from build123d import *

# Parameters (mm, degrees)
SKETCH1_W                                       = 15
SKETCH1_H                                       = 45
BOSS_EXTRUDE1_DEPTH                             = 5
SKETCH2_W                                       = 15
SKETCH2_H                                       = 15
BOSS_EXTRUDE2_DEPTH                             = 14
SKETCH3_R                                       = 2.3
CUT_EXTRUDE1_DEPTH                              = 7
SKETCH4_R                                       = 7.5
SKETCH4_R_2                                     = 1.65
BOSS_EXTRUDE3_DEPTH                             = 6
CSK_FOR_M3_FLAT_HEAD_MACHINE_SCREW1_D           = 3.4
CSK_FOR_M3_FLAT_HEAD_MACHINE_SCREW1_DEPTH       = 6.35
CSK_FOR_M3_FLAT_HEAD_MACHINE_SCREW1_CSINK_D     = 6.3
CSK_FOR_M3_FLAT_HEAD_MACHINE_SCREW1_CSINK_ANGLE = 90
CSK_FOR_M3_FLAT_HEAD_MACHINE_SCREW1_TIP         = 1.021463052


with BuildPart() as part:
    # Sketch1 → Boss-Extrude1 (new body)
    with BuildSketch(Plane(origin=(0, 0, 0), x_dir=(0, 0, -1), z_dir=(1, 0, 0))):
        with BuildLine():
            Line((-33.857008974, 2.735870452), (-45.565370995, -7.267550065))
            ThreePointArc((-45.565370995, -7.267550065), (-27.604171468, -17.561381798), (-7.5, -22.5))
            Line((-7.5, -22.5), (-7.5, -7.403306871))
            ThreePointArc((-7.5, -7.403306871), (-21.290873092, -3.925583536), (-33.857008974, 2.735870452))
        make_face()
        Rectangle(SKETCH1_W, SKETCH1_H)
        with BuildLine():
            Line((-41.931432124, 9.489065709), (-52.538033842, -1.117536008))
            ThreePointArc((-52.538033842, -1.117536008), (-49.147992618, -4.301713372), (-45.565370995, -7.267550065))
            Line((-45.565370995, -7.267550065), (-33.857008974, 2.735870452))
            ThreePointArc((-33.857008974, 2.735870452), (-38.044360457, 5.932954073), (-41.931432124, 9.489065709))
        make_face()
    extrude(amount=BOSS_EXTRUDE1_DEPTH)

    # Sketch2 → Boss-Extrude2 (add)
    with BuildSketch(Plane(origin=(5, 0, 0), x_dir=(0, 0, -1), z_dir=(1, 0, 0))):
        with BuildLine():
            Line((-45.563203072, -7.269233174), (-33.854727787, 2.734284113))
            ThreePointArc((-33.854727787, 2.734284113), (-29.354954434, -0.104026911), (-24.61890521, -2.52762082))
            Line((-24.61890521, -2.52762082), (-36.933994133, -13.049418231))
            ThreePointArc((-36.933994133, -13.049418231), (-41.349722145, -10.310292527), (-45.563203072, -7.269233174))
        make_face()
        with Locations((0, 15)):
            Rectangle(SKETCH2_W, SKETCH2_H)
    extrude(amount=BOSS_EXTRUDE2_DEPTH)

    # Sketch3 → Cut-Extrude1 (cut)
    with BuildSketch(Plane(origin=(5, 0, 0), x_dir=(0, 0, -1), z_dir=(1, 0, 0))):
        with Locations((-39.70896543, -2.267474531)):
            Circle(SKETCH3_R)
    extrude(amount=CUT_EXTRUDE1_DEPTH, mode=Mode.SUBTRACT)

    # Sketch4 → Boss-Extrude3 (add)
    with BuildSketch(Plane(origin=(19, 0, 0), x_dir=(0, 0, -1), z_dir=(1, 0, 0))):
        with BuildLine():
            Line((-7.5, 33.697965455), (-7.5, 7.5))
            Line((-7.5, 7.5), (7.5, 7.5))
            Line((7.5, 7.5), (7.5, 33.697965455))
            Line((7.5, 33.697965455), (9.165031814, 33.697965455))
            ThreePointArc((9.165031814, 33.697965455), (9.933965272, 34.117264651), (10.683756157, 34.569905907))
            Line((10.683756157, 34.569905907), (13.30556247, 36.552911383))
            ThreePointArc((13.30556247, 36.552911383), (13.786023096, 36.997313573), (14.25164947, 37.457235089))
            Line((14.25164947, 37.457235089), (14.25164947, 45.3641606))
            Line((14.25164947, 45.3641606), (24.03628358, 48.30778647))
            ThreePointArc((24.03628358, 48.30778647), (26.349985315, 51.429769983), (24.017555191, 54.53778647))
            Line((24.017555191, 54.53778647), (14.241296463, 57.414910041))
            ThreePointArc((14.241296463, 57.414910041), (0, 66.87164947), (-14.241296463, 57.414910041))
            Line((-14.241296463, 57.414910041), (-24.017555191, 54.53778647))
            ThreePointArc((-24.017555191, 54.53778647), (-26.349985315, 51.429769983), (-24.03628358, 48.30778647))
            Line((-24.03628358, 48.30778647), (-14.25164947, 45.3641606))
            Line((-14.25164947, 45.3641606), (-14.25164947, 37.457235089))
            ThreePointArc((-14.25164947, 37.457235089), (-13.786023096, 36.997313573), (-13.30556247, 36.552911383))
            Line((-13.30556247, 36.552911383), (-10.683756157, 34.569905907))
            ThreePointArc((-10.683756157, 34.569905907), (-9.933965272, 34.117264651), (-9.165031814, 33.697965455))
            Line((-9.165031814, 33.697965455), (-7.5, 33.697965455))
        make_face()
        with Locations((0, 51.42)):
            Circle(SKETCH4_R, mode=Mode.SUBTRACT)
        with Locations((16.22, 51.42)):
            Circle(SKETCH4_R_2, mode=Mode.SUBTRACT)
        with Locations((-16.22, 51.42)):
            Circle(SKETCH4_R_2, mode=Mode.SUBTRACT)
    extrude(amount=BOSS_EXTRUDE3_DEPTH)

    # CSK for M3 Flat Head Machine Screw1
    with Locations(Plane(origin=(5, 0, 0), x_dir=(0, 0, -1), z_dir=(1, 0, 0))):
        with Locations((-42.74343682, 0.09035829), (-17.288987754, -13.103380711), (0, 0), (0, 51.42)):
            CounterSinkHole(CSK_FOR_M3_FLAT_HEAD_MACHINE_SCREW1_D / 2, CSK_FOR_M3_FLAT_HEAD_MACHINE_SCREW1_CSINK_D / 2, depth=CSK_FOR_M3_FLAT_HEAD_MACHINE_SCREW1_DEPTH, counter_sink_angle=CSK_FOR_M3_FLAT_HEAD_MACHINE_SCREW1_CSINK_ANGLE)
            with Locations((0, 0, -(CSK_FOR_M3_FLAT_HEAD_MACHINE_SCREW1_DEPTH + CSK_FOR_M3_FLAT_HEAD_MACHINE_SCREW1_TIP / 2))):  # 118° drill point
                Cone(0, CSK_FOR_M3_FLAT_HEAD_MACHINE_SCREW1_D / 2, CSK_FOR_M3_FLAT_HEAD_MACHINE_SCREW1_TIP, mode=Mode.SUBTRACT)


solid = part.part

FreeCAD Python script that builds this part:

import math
import FreeCAD as App
import Part
import Sketcher

V = App.Vector
Q = App.Units.Quantity

doc = App.newDocument("Part")
params = doc.addObject("Spreadsheet::Sheet", "Params")
for row, (alias, value) in enumerate([
    ("sketch1_radius", "74.3 mm"),
    ("sketch1_radius2", "59.3 mm"),
    ("sketch1_width", "45 mm"),
    ("sketch1_height", "15 mm"),
    ("pad1_length", "5 mm"),
    ("sketch2_radius", "74.3 mm"),
    ("sketch2_radius2", "59.3 mm"),
    ("sketch2_width", "15 mm"),
    ("pad2_length", "14 mm"),
    ("sketch3_diameter", "4.6 mm"),
    ("pocket1_length", "7 mm"),
    ("sketch4_diameter", "15 mm"),
    ("sketch4_diameter2", "3.3 mm"),
    ("sketch4_height", "15 mm"),
    ("sketch4_radius", "3.25 mm"),
    ("pad3_length", "6 mm"),
    ("sketch5_diameter", "3.4 mm"),
    ("hole_diameter", "3.4 mm"),
    ("hole_depth", "6.35 mm"),
    ("hole_csink_diameter", "6.3 mm"),
], start=1):
    params.set(f"A{row}", alias)
    params.set(f"B{row}", "=" + value)
    params.setAlias(f"B{row}", alias)

body = doc.addObject("PartDesign::Body", "Body")

sketch1 = body.newObject("Sketcher::SketchObject", "Sketch")
sketch1.AttachmentSupport = (doc.getObject("YZ_Plane"), [""])
sketch1.MapMode = "FlatFace"
sketch1.addGeometry(Part.ArcOfCircle(Part.Circle(V(51, 0, 0), V(0, 0, 1), 74), math.radians(142), math.radians(174)), False)
sketch1.addGeometry(Part.LineSegment(V(-22, 8, 0), V(-22, -8, 0)), False)
sketch1.addGeometry(Part.LineSegment(V(-22, -8, 0), V(22, -8, 0)), False)
sketch1.addGeometry(Part.LineSegment(V(22, -8, 0), V(22, 8, 0)), False)
sketch1.addGeometry(Part.LineSegment(V(22, 8, 0), V(-7, 8, 0)), False)
sketch1.addGeometry(Part.ArcOfCircle(Part.Circle(V(51, 0, 0), V(0, 0, 1), 59), math.radians(145), math.radians(173)), False)
sketch1.addGeometry(Part.ArcOfCircle(Part.Circle(V(51, 0, 0), V(0, 0, 1), 59), math.radians(135), math.radians(145.18)), False)
sketch1.addGeometry(Part.LineSegment(V(9, 42, 0), V(-1, 53, 0)), False)
sketch1.addGeometry(Part.ArcOfCircle(Part.Circle(V(51, 0, 0), V(0, 0, 1), 74), math.radians(135), math.radians(142.17)), False)
sketch1.addConstraint(Sketcher.Constraint("Coincident", 0, 2, 1, 1))
sketch1.addConstraint(Sketcher.Constraint("Coincident", 1, 2, 2, 1))
sketch1.addConstraint(Sketcher.Constraint("Coincident", 2, 2, 3, 1))
sketch1.addConstraint(Sketcher.Constraint("Coincident", 3, 2, 4, 1))
sketch1.addConstraint(Sketcher.Constraint("Coincident", 4, 2, 5, 2))
sketch1.addConstraint(Sketcher.Constraint("Tangent", 5, 1, 6, 2))
sketch1.addConstraint(Sketcher.Constraint("Coincident", 6, 1, 7, 1))
sketch1.addConstraint(Sketcher.Constraint("Coincident", 7, 2, 8, 1))
sketch1.addConstraint(Sketcher.Constraint("Tangent", 8, 2, 0, 1))
sketch1.addConstraint(Sketcher.Constraint("Vertical", 1))
sketch1.addConstraint(Sketcher.Constraint("Horizontal", 2))
sketch1.addConstraint(Sketcher.Constraint("Vertical", 3))
sketch1.addConstraint(Sketcher.Constraint("Horizontal", 4))
sketch1.addConstraint(Sketcher.Constraint("Coincident", 5, 3, 0, 3))
sketch1.addConstraint(Sketcher.Constraint("Equal", 5, 6))
sketch1.addConstraint(Sketcher.Constraint("Equal", 0, 8))
sketch1.addConstraint(Sketcher.Constraint("Symmetric", 0, 2, 2, 2, -1, 1))
sketch1.addConstraint(Sketcher.Constraint("PointOnObject", 0, 3, -1))
sketch1.addConstraint(Sketcher.Constraint("Horizontal", 0, 2, 3, 2))
sketch1.addConstraint(Sketcher.Constraint("Radius", 0, Q("74.3 mm")))
sketch1.addConstraint(Sketcher.Constraint("Radius", 5, Q("59.3 mm")))
sketch1.addConstraint(Sketcher.Constraint("DistanceX", 2, 1, 2, 2, Q("45 mm")))
sketch1.addConstraint(Sketcher.Constraint("DistanceY", 1, 2, 1, 1, Q("15 mm")))
sketch1.addConstraint(Sketcher.Constraint("Angle", 7, Q("135 deg")))
sketch1.addConstraint(Sketcher.Constraint("DistanceX", -1, 1, 5, 1, Q("2.73587 mm")))
sketch1.addConstraint(Sketcher.Constraint("DistanceX", 8, 2, -1, 1, Q("7.26755 mm")))
sketch1.addConstraint(Sketcher.Constraint("DistanceX", 4, 2, 7, 2, Q("6.285771 mm")))
sketch1.setExpression("Constraints[19]", "Params.sketch1_radius")
sketch1.setExpression("Constraints[20]", "Params.sketch1_radius2")
sketch1.setExpression("Constraints[21]", "Params.sketch1_width")
sketch1.setExpression("Constraints[22]", "Params.sketch1_height")
pad1 = body.newObject("PartDesign::Pad", "Pad")
pad1.Profile = sketch1
pad1.setExpression("Length", "Params.pad1_length")

sketch2 = body.newObject("Sketcher::SketchObject", "Sketch001")
sketch2.AttachmentSupport = (doc.getObject("YZ_Plane"), [""])
sketch2.MapMode = "FlatFace"
sketch2.AttachmentOffset = App.Placement(V(0, 0, 5), App.Rotation())
sketch2.addGeometry(Part.LineSegment(V(3, 34, 0), V(-7, 46, 0)), False)
sketch2.addGeometry(Part.ArcOfCircle(Part.Circle(V(51, 0, 0), V(0, 0, 1), 74), math.radians(142.18), math.radians(150.19)), False)
sketch2.addGeometry(Part.LineSegment(V(-13, 37, 0), V(-3, 25, 0)), False)
sketch2.addGeometry(Part.ArcOfCircle(Part.Circle(V(51, 0, 0), V(0, 0, 1), 59), math.radians(145.19), math.radians(155.47)), False)
sketch2.addGeometry(Part.LineSegment(V(22, 8, 0), V(8, 8, 0)), False)
sketch2.addGeometry(Part.LineSegment(V(8, 8, 0), V(8, -8, 0)), False)
sketch2.addGeometry(Part.LineSegment(V(8, -8, 0), V(22, -8, 0)), False)
sketch2.addGeometry(Part.LineSegment(V(22, -8, 0), V(22, 8, 0)), False)
sketch2.addConstraint(Sketcher.Constraint("Coincident", 0, 2, 1, 1))
sketch2.addConstraint(Sketcher.Constraint("Coincident", 1, 2, 2, 1))
sketch2.addConstraint(Sketcher.Constraint("Coincident", 2, 2, 3, 2))
sketch2.addConstraint(Sketcher.Constraint("Coincident", 3, 1, 0, 1))
sketch2.addConstraint(Sketcher.Constraint("Coincident", 4, 2, 5, 1))
sketch2.addConstraint(Sketcher.Constraint("Coincident", 5, 2, 6, 1))
sketch2.addConstraint(Sketcher.Constraint("Coincident", 6, 2, 7, 1))
sketch2.addConstraint(Sketcher.Constraint("Coincident", 7, 2, 4, 1))
sketch2.addConstraint(Sketcher.Constraint("Horizontal", 4))
sketch2.addConstraint(Sketcher.Constraint("Vertical", 5))
sketch2.addConstraint(Sketcher.Constraint("Horizontal", 6))
sketch2.addConstraint(Sketcher.Constraint("Vertical", 7))
sketch2.addConstraint(Sketcher.Constraint("Coincident", 3, 3, 1, 3))
sketch2.addConstraint(Sketcher.Constraint("PointOnObject", 1, 3, -1))
sketch2.addConstraint(Sketcher.Constraint("Parallel", 0, 2))
sketch2.addConstraint(Sketcher.Constraint("Equal", 6, 5))
sketch2.addConstraint(Sketcher.Constraint("Radius", 1, Q("74.3 mm")))
sketch2.addConstraint(Sketcher.Constraint("Radius", 3, Q("59.3 mm")))
sketch2.addConstraint(Sketcher.Constraint("DistanceX", 4, 2, 4, 1, Q("15 mm")))
sketch2.addConstraint(Sketcher.Constraint("DistanceX", -1, 1, 4, 2, Q("7.5 mm")))
sketch2.addConstraint(Sketcher.Constraint("DistanceY", -1, 1, 4, 2, Q("7.5 mm")))
sketch2.addConstraint(Sketcher.Constraint("Angle", 0, Q("130.51 deg")))
sketch2.addConstraint(Sketcher.Constraint("Distance", 0, Q("15.399959 mm")))
sketch2.addConstraint(Sketcher.Constraint("Distance", 2, Q("16.197828 mm")))
sketch2.addConstraint(Sketcher.Constraint("DistanceX", 1, 2, -1, 1, Q("13.049418 mm")))
sketch2.setExpression("Constraints[16]", "Params.sketch2_radius")
sketch2.setExpression("Constraints[17]", "Params.sketch2_radius2")
sketch2.setExpression("Constraints[18]", "Params.sketch2_width")
pad2 = body.newObject("PartDesign::Pad", "Pad001")
pad2.Profile = sketch2
pad2.setExpression("Length", "Params.pad2_length")

sketch3 = body.newObject("Sketcher::SketchObject", "Sketch002")
sketch3.AttachmentSupport = (doc.getObject("YZ_Plane"), [""])
sketch3.MapMode = "FlatFace"
sketch3.AttachmentOffset = App.Placement(V(0, 0, 5), App.Rotation())
sketch3.addGeometry(Part.Circle(V(-2.3, 39.7, 0), V(0, 0, 1), 2.3), False)
sketch3.addConstraint(Sketcher.Constraint("Diameter", 0, Q("4.6 mm")))
sketch3.addConstraint(Sketcher.Constraint("DistanceX", 0, 3, -1, 1, Q("2.267475 mm")))
sketch3.addConstraint(Sketcher.Constraint("DistanceY", -1, 1, 0, 3, Q("39.708965 mm")))
sketch3.setExpression("Constraints[0]", "Params.sketch3_diameter")
pocket1 = body.newObject("PartDesign::Pocket", "Pocket")
pocket1.Profile = sketch3
pocket1.setExpression("Length", "Params.pocket1_length")
pocket1.Reversed = True

sketch4 = body.newObject("Sketcher::SketchObject", "Sketch003")
sketch4.AttachmentSupport = (doc.getObject("YZ_Plane"), [""])
sketch4.MapMode = "FlatFace"
sketch4.AttachmentOffset = App.Placement(V(0, 0, 19), App.Rotation())
sketch4.addGeometry(Part.LineSegment(V(33.7, 7.5, 0), V(7.5, 7.5, 0)), False)
sketch4.addGeometry(Part.LineSegment(V(7.5, 7.5, 0), V(7.5, -7.5, 0)), False)
sketch4.addGeometry(Part.LineSegment(V(7.5, -7.5, 0), V(33.7, -7.5, 0)), False)
sketch4.addGeometry(Part.LineSegment(V(33.7, -7.5, 0), V(33.7, -9.2, 0)), False)
sketch4.addGeometry(Part.ArcOfCircle(Part.Circle(V(51.4, 0, 0), V(0, 0, 1), 20), math.radians(-152.65), math.radians(-147.62)), False)
sketch4.addGeometry(Part.LineSegment(V(34.6, -10.7, 0), V(36.6, -13.3, 0)), False)
sketch4.addGeometry(Part.ArcOfCircle(Part.Circle(V(51.4, 0, 0), V(0, 0, 1), 20), math.radians(-138.17), math.radians(-134.41)), False)
sketch4.addGeometry(Part.LineSegment(V(37.5, -14.3, 0), V(45.4, -14.3, 0)), False)
sketch4.addGeometry(Part.LineSegment(V(45.4, -14.3, 0), V(48.3, -24, 0)), False)
sketch4.addGeometry(Part.ArcOfCircle(Part.Circle(V(51.4, -23.1, 0), V(0, 0, 1), 3.2), math.radians(-163), math.radians(-16)), False)
sketch4.addGeometry(Part.LineSegment(V(54.5, -24, 0), V(57.4, -14.2, 0)), False)
sketch4.addGeometry(Part.ArcOfCircle(Part.Circle(V(51.4, 0, 0), V(0, 0, 1), 15.5), math.radians(-67), math.radians(67)), False)
sketch4.addGeometry(Part.LineSegment(V(57.4, 14.2, 0), V(54.5, 24, 0)), False)
sketch4.addGeometry(Part.ArcOfCircle(Part.Circle(V(51.4, 23.1, 0), V(0, 0, 1), 3.2), math.radians(16), math.radians(163)), False)
sketch4.addGeometry(Part.LineSegment(V(48.3, 24, 0), V(45.4, 14.3, 0)), False)
sketch4.addGeometry(Part.LineSegment(V(45.4, 14.3, 0), V(37.5, 14.3, 0)), False)
sketch4.addGeometry(Part.ArcOfCircle(Part.Circle(V(51.4, 0, 0), V(0, 0, 1), 20), math.radians(134.41), math.radians(138.17)), False)
sketch4.addGeometry(Part.LineSegment(V(36.6, 13.3, 0), V(34.6, 10.7, 0)), False)
sketch4.addGeometry(Part.ArcOfCircle(Part.Circle(V(51.4, 0, 0), V(0, 0, 1), 20), math.radians(147.62), math.radians(152.65)), False)
sketch4.addGeometry(Part.LineSegment(V(33.7, 9.2, 0), V(33.7, 7.5, 0)), False)
sketch4.addGeometry(Part.Circle(V(51.4, 16.2, 0), V(0, 0, 1), 1.6), False)
sketch4.addGeometry(Part.Circle(V(51.4, 0, 0), V(0, 0, 1), 7.5), False)
sketch4.addGeometry(Part.Circle(V(51.4, -16.2, 0), V(0, 0, 1), 1.6), False)
sketch4.addConstraint(Sketcher.Constraint("Coincident", 0, 2, 1, 1))
sketch4.addConstraint(Sketcher.Constraint("Coincident", 1, 2, 2, 1))
sketch4.addConstraint(Sketcher.Constraint("Coincident", 2, 2, 3, 1))
sketch4.addConstraint(Sketcher.Constraint("Coincident", 3, 2, 4, 1))
sketch4.addConstraint(Sketcher.Constraint("Coincident", 4, 2, 5, 1))
sketch4.addConstraint(Sketcher.Constraint("Coincident", 5, 2, 6, 1))
sketch4.addConstraint(Sketcher.Constraint("Coincident", 6, 2, 7, 1))
sketch4.addConstraint(Sketcher.Constraint("Coincident", 7, 2, 8, 1))
sketch4.addConstraint(Sketcher.Constraint("Tangent", 8, 2, 9, 1))
sketch4.addConstraint(Sketcher.Constraint("Tangent", 9, 2, 10, 1))
sketch4.addConstraint(Sketcher.Constraint("Coincident", 10, 2, 11, 1))
sketch4.addConstraint(Sketcher.Constraint("Coincident", 11, 2, 12, 1))
sketch4.addConstraint(Sketcher.Constraint("Tangent", 12, 2, 13, 1))
sketch4.addConstraint(Sketcher.Constraint("Tangent", 13, 2, 14, 1))
sketch4.addConstraint(Sketcher.Constraint("Coincident", 14, 2, 15, 1))
sketch4.addConstraint(Sketcher.Constraint("Coincident", 15, 2, 16, 1))
sketch4.addConstraint(Sketcher.Constraint("Coincident", 16, 2, 17, 1))
sketch4.addConstraint(Sketcher.Constraint("Coincident", 17, 2, 18, 1))
sketch4.addConstraint(Sketcher.Constraint("Coincident", 18, 2, 19, 1))
sketch4.addConstraint(Sketcher.Constraint("Coincident", 19, 2, 0, 1))
sketch4.addConstraint(Sketcher.Constraint("Horizontal", 0))
sketch4.addConstraint(Sketcher.Constraint("Vertical", 1))
sketch4.addConstraint(Sketcher.Constraint("Horizontal", 2))
sketch4.addConstraint(Sketcher.Constraint("Vertical", 3))
sketch4.addConstraint(Sketcher.Constraint("Horizontal", 7))
sketch4.addConstraint(Sketcher.Constraint("Horizontal", 15))
sketch4.addConstraint(Sketcher.Constraint("Vertical", 19))
sketch4.addConstraint(Sketcher.Constraint("Coincident", 6, 3, 4, 3))
sketch4.addConstraint(Sketcher.Constraint("Coincident", 11, 3, 4, 3))
sketch4.addConstraint(Sketcher.Constraint("Coincident", 16, 3, 4, 3))
sketch4.addConstraint(Sketcher.Constraint("Coincident", 18, 3, 4, 3))
sketch4.addConstraint(Sketcher.Constraint("Coincident", 21, 3, 4, 3))
sketch4.addConstraint(Sketcher.Constraint("Equal", 4, 6))
sketch4.addConstraint(Sketcher.Constraint("Equal", 9, 13))
sketch4.addConstraint(Sketcher.Constraint("Equal", 6, 16))
sketch4.addConstraint(Sketcher.Constraint("Equal", 16, 18))
sketch4.addConstraint(Sketcher.Constraint("Equal", 20, 22))
sketch4.addConstraint(Sketcher.Constraint("Symmetric", 9, 3, 13, 3, -1))
sketch4.addConstraint(Sketcher.Constraint("Symmetric", 20, 3, 22, 3, -1))
sketch4.addConstraint(Sketcher.Constraint("Symmetric", 10, 2, 11, 2, -1))
sketch4.addConstraint(Sketcher.Constraint("Symmetric", 7, 2, 14, 2, -1))
sketch4.addConstraint(Sketcher.Constraint("Symmetric", 2, 2, 19, 2, -1))
sketch4.addConstraint(Sketcher.Constraint("Vertical", 6, 3, 9, 3))
sketch4.addConstraint(Sketcher.Constraint("Vertical", 18, 3, 20, 3))
sketch4.addConstraint(Sketcher.Constraint("Vertical", 5, 2, 16, 2))
sketch4.addConstraint(Sketcher.Constraint("Vertical", 4, 2, 17, 2))
sketch4.addConstraint(Sketcher.Constraint("Diameter", 21, Q("15 mm")))
sketch4.addConstraint(Sketcher.Constraint("Diameter", 20, Q("3.3 mm")))
sketch4.addConstraint(Sketcher.Constraint("DistanceY", 1, 2, 1, 1, Q("15 mm")))
sketch4.addConstraint(Sketcher.Constraint("Radius", 9, Q("3.25 mm")))
sketch4.addConstraint(Sketcher.Constraint("DistanceY", 9, 3, -1, 1, Q("23.1 mm")))
sketch4.addConstraint(Sketcher.Constraint("DistanceX", -1, 1, 0, 2, Q("7.5 mm")))
sketch4.addConstraint(Sketcher.Constraint("DistanceX", -1, 1, 4, 3, Q("51.42 mm")))
sketch4.addConstraint(Sketcher.Constraint("DistanceY", -1, 1, 20, 3, Q("16.22 mm")))
sketch4.addConstraint(Sketcher.Constraint("Radius", 4, Q("19.951649 mm")))
sketch4.addConstraint(Sketcher.Constraint("Radius", 11, Q("15.451649 mm")))
sketch4.addConstraint(Sketcher.Constraint("DistanceX", 8, 2, 9, 2, Q("6.23 mm")))
sketch4.addConstraint(Sketcher.Constraint("DistanceY", 3, 2, 3, 1, Q("1.665032 mm")))
sketch4.addConstraint(Sketcher.Constraint("DistanceX", 7, 1, 7, 2, Q("7.906926 mm")))
sketch4.addConstraint(Sketcher.Constraint("DistanceX", -1, 1, 5, 2, Q("36.552911 mm")))
sketch4.addConstraint(Sketcher.Constraint("DistanceY", 6, 2, -1, 1, Q("14.251649 mm")))
sketch4.addConstraint(Sketcher.Constraint("DistanceX", 3, 2, 4, 2, Q("0.87194 mm")))
sketch4.setExpression("Constraints[46]", "Params.sketch4_diameter")
sketch4.setExpression("Constraints[47]", "Params.sketch4_diameter2")
sketch4.setExpression("Constraints[48]", "Params.sketch4_height")
sketch4.setExpression("Constraints[49]", "Params.sketch4_radius")
pad3 = body.newObject("PartDesign::Pad", "Pad002")
pad3.Profile = sketch4
pad3.setExpression("Length", "Params.pad3_length")

sketch5 = body.newObject("Sketcher::SketchObject", "Sketch004")
sketch5.AttachmentSupport = (doc.getObject("YZ_Plane"), [""])
sketch5.MapMode = "FlatFace"
sketch5.AttachmentOffset = App.Placement(V(0, 0, 5), App.Rotation())
sketch5.addGeometry(Part.Circle(V(0.1, 42.7, 0), V(0, 0, 1), 1.7), False)
sketch5.addGeometry(Part.Circle(V(-13.1, 17.3, 0), V(0, 0, 1), 1.7), False)
sketch5.addGeometry(Part.Circle(V(0, 0, 0), V(0, 0, 1), 1.7), False)
sketch5.addGeometry(Part.Circle(V(51.4, 0, 0), V(0, 0, 1), 1.7), False)
sketch5.addConstraint(Sketcher.Constraint("Coincident", 2, 3, -1, 1))
sketch5.addConstraint(Sketcher.Constraint("Equal", 0, 1))
sketch5.addConstraint(Sketcher.Constraint("Equal", 1, 2))
sketch5.addConstraint(Sketcher.Constraint("Equal", 2, 3))
sketch5.addConstraint(Sketcher.Constraint("PointOnObject", 3, 3, -1))
sketch5.addConstraint(Sketcher.Constraint("Diameter", 0, Q("3.4 mm")))
sketch5.addConstraint(Sketcher.Constraint("DistanceX", -1, 1, 3, 3, Q("51.42 mm")))
sketch5.addConstraint(Sketcher.Constraint("DistanceX", -1, 1, 0, 3, Q("0.090358 mm")))
sketch5.addConstraint(Sketcher.Constraint("DistanceX", 1, 3, -1, 1, Q("13.103381 mm")))
sketch5.addConstraint(Sketcher.Constraint("DistanceY", 1, 3, 0, 3, Q("25.454449 mm")))
sketch5.addConstraint(Sketcher.Constraint("DistanceY", -1, 1, 0, 3, Q("42.743437 mm")))
sketch5.setExpression("Constraints[5]", "Params.sketch5_diameter")
doc.recompute()
hole = body.newObject("PartDesign::Hole", "Hole")
hole.Profile = sketch5
hole.ThreadType = "None"
hole.setExpression("Diameter", "Params.hole_diameter")
hole.DepthType = "Dimension"
hole.setExpression("Depth", "Params.hole_depth")
hole.DrillPoint = "Angled"
hole.DrillPointAngle = 118
hole.HoleCutType = "Countersink"
hole.setExpression("HoleCutDiameter", "Params.hole_csink_diameter")
hole.HoleCutCountersinkAngle = 90

doc.recompute()
